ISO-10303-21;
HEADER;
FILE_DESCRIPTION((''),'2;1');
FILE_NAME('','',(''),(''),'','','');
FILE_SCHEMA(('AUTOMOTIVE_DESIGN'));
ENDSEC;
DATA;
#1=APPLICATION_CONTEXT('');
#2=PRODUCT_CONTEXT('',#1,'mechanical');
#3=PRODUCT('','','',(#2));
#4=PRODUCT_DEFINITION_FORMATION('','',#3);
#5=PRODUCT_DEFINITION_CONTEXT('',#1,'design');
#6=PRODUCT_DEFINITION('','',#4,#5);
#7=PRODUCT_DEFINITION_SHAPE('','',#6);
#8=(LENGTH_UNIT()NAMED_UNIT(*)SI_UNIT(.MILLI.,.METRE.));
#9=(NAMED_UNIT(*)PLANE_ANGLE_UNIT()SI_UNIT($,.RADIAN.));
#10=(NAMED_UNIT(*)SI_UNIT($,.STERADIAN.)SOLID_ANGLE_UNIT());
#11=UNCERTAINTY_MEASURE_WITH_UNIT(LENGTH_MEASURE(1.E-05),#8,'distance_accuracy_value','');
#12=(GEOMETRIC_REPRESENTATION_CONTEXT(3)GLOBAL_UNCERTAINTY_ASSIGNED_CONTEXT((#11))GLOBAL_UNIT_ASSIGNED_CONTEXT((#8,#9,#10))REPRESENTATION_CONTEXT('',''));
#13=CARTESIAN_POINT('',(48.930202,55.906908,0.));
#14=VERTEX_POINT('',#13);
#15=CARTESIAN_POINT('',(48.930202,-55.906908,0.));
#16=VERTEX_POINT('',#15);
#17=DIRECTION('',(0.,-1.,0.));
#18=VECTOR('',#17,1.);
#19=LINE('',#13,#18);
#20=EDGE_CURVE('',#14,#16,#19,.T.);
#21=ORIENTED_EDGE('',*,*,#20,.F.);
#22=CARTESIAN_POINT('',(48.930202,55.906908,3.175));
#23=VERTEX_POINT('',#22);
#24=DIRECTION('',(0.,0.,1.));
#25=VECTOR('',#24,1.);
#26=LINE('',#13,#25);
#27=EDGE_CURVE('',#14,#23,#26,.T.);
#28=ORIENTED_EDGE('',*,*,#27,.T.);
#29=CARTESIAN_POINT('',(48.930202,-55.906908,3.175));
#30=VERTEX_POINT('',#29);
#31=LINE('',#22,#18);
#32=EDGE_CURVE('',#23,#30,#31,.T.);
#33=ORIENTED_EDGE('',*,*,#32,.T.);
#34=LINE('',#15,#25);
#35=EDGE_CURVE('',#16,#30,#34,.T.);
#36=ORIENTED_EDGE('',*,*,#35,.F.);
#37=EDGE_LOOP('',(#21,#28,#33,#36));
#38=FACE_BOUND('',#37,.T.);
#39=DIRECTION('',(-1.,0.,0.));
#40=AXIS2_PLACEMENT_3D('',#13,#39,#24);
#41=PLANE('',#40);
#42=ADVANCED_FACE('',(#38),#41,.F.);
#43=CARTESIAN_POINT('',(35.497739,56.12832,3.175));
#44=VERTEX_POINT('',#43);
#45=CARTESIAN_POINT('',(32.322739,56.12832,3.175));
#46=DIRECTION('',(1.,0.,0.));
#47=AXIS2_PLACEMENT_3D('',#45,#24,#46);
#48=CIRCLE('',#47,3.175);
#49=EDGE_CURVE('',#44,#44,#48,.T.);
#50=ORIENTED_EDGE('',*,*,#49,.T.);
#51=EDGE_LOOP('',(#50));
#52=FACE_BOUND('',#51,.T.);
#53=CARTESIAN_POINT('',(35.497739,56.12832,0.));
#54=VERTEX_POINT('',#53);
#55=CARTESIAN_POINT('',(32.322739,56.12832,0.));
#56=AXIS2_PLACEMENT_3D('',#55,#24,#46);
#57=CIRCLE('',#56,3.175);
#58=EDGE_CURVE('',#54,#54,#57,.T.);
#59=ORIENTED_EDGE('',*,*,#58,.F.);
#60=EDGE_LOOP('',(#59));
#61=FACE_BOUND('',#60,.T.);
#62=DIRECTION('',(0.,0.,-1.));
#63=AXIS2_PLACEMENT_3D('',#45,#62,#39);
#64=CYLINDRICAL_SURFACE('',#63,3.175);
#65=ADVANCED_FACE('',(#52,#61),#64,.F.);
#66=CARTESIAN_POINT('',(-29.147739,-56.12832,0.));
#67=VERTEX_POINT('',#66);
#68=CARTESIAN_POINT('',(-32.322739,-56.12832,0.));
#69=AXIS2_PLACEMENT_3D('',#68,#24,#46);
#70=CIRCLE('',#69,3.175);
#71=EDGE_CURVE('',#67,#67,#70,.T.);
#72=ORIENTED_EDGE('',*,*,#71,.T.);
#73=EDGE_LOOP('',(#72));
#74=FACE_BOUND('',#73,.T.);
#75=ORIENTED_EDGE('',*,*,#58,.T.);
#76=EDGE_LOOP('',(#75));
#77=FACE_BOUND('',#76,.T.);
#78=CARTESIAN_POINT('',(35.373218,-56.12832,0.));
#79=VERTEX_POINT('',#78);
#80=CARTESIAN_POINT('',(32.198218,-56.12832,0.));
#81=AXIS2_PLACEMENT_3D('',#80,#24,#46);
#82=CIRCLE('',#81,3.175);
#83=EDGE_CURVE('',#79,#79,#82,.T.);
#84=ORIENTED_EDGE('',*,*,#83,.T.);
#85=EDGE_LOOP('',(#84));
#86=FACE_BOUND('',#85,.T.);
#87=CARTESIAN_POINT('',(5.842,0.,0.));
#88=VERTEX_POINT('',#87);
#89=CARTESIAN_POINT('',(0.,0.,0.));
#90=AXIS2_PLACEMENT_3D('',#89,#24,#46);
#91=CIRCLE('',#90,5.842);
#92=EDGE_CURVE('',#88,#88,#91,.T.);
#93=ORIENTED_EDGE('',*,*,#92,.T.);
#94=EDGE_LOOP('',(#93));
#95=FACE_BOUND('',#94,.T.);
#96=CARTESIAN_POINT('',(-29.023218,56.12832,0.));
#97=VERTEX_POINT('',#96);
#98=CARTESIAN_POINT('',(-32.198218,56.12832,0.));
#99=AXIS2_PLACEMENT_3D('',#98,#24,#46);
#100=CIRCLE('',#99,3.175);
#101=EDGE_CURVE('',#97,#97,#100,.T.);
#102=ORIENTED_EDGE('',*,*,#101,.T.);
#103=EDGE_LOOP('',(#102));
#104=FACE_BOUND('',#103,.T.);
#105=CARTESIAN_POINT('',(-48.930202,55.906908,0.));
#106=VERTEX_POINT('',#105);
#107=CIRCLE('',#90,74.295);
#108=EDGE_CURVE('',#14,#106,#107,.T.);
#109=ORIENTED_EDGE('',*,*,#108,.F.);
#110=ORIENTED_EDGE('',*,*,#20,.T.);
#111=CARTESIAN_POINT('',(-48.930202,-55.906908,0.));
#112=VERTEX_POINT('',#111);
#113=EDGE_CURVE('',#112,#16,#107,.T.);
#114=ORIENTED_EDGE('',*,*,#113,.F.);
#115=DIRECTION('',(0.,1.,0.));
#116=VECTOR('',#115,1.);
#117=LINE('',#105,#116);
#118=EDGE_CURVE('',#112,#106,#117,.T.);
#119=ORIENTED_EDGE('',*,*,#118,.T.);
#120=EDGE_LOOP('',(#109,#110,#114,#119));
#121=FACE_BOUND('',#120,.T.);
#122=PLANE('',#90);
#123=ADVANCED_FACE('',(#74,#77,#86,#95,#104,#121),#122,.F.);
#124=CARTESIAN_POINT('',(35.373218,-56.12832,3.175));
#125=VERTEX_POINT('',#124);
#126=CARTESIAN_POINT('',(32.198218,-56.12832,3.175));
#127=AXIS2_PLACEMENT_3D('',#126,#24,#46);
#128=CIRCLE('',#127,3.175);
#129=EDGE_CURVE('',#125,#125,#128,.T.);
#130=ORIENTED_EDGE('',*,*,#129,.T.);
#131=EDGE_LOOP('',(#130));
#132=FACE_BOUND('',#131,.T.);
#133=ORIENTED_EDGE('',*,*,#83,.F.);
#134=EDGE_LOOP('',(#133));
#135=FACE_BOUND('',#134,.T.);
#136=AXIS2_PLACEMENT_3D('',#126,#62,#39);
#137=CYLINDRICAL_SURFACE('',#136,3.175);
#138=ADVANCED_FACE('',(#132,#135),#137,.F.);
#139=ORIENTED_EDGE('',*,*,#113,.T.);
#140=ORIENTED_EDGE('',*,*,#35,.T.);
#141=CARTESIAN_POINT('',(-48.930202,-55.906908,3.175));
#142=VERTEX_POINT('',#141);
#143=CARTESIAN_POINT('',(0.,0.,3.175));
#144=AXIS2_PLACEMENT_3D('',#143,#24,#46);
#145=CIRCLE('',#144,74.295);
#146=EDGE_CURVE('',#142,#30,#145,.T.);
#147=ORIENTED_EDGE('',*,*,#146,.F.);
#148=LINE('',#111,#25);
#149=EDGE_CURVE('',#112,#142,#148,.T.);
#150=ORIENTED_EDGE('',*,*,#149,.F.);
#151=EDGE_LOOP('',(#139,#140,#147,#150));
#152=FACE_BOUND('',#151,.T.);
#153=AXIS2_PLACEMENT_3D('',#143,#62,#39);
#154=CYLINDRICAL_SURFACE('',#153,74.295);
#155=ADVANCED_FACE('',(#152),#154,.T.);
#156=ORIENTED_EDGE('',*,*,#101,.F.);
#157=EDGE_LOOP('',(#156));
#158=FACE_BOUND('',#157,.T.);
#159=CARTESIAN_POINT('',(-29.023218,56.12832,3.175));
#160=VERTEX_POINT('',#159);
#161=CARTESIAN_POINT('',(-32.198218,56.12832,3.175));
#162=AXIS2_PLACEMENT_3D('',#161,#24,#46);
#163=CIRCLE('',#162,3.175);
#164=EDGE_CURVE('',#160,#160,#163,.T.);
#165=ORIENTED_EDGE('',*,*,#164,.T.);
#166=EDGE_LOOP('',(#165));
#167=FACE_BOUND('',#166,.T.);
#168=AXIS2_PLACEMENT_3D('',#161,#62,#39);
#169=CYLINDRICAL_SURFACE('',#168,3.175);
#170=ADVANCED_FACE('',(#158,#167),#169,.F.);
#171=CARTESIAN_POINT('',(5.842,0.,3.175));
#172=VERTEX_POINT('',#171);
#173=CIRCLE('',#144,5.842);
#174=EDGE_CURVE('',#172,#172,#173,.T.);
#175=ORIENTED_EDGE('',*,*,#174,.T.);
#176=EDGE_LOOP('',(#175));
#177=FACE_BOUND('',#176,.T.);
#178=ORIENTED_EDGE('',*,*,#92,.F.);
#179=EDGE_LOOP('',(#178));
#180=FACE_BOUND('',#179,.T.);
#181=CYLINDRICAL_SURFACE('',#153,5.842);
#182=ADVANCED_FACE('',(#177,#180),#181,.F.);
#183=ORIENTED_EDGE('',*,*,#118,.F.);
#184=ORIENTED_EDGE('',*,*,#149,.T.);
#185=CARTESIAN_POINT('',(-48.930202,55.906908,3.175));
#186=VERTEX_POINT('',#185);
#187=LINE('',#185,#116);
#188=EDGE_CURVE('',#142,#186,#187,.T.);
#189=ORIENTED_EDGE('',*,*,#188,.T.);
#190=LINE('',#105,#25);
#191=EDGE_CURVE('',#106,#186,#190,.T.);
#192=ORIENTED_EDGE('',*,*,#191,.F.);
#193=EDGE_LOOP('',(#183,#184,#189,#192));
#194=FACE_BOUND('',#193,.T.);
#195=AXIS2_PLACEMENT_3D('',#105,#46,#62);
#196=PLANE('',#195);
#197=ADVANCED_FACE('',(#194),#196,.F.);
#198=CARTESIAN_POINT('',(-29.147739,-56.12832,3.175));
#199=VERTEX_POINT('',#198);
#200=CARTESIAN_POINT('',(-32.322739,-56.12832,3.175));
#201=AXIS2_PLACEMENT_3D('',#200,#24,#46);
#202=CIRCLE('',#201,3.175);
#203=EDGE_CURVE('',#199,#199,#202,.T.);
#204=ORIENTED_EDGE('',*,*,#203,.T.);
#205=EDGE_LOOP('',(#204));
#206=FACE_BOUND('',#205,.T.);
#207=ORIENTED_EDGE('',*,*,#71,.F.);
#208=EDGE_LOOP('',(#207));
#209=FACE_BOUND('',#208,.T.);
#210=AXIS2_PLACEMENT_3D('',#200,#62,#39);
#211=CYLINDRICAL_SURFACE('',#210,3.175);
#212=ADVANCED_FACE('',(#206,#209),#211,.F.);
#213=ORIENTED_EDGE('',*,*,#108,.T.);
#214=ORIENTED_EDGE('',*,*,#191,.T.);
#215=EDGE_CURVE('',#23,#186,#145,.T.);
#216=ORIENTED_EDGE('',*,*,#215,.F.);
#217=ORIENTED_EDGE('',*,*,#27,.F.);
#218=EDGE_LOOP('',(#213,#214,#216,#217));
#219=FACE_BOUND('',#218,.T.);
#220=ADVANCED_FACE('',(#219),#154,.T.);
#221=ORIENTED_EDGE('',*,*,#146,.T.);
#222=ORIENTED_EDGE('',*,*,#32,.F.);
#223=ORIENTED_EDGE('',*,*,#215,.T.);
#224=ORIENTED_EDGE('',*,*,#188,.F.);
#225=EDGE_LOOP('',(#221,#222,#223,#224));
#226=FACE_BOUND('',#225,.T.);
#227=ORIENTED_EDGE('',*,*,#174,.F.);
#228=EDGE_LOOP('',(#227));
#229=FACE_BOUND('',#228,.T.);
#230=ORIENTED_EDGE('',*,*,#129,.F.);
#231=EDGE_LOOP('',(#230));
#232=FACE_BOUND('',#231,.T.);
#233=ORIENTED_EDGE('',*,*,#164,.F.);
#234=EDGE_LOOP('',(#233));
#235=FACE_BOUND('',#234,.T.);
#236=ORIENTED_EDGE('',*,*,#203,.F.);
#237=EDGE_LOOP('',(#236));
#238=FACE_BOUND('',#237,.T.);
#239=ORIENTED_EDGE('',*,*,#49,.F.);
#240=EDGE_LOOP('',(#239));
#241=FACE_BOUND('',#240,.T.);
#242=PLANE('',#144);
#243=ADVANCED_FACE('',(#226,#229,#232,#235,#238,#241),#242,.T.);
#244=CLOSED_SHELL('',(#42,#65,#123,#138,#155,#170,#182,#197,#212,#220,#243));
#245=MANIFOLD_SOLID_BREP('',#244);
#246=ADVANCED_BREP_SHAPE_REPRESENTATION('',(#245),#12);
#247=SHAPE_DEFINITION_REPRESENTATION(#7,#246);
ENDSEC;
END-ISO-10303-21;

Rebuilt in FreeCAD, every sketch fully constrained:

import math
import FreeCAD as App
import Part
import Sketcher

V = App.Vector
Q = App.Units.Quantity

doc = App.newDocument("Part")
body = doc.addObject("PartDesign::Body", "Body")

# Sketch on XY plane
sketch1 = body.newObject("Sketcher::SketchObject", "Sketch")
sketch1.AttachmentSupport = (doc.getObject("XY_Plane"), [""])
sketch1.MapMode = "FlatFace"
sketch1.addGeometry(Part.Circle(V(0, 0, 0), V(0, 0, 1), 74.3), False)
sketch1.addGeometry(Part.Circle(V(-32.3, -56.1, 0), V(0, 0, 1), 3.2), False)
sketch1.addGeometry(Part.Circle(V(32.2, -56.1, 0), V(0, 0, 1), 3.2), False)
sketch1.addGeometry(Part.Circle(V(-32.2, 56.1, 0), V(0, 0, 1), 3.2), False)
sketch1.addGeometry(Part.Circle(V(0, 0, 0), V(0, 0, 1), 5.8), False)
sketch1.addGeometry(Part.Circle(V(32.3, 56.1, 0), V(0, 0, 1), 3.2), False)
sketch1.addConstraint(Sketcher.Constraint("Coincident", 0, 3, -1, 1))
sketch1.addConstraint(Sketcher.Constraint("Coincident", 4, 3, -1, 1))
sketch1.addConstraint(Sketcher.Constraint("Equal", 1, 2))
sketch1.addConstraint(Sketcher.Constraint("Equal", 2, 3))
sketch1.addConstraint(Sketcher.Constraint("Equal", 3, 5))
sketch1.addConstraint(Sketcher.Constraint("Symmetric", 2, 3, 3, 3, -1, 1))
sketch1.addConstraint(Sketcher.Constraint("Symmetric", 1, 3, 5, 3, -1, 1))
sketch1.addConstraint(Sketcher.Constraint("Horizontal", 1, 3, 2, 3))
sketch1.addConstraint(Sketcher.Constraint("Diameter", 0, Q("5.85 in")))
sketch1.addConstraint(Sketcher.Constraint("Diameter", 1, Q("0.25 in")))
sketch1.addConstraint(Sketcher.Constraint("Diameter", 4, Q("0.46 in")))
sketch1.addConstraint(Sketcher.Constraint("DistanceX", 1, 3, -1, 1, 32.322739))
sketch1.addConstraint(Sketcher.Constraint("DistanceY", 1, 3, -1, 1, 56.12832))
sketch1.addConstraint(Sketcher.Constraint("DistanceX", 1, 3, 3, 3, 0.124522))
pad1 = body.newObject("PartDesign::Pad", "Pad")
pad1.Profile = sketch1
pad1.Length = Q("0.125 in")

# Sketch on XY plane
sketch2 = body.newObject("Sketcher::SketchObject", "Sketch001")
sketch2.AttachmentSupport = (doc.getObject("XY_Plane"), [""])
sketch2.MapMode = "FlatFace"
sketch2.AttachmentOffset = App.Placement(V(0, 0, 0.125 * 25.4), App.Rotation())
sketch2.addGeometry(Part.LineSegment(V(-49, -56, 0), V(-49, 56, 0)), False)
sketch2.addGeometry(Part.ArcOfCircle(Part.Circle(V(0, 0, 0), V(0, 0, 1), 74), math.radians(131), math.radians(229)), False)
sketch2.addGeometry(Part.LineSegment(V(49, 56, 0), V(49, -56, 0)), False)
sketch2.addGeometry(Part.ArcOfCircle(Part.Circle(V(0, 0, 0), V(0, 0, 1), 74), math.radians(-49), math.radians(49)), False)
sketch2.addConstraint(Sketcher.Constraint("Coincident", 0, 1, 1, 2))
sketch2.addConstraint(Sketcher.Constraint("Coincident", 1, 1, 0, 2))
sketch2.addConstraint(Sketcher.Constraint("Coincident", 2, 1, 3, 2))
sketch2.addConstraint(Sketcher.Constraint("Coincident", 3, 1, 2, 2))
sketch2.addConstraint(Sketcher.Constraint("Vertical", 0))
sketch2.addConstraint(Sketcher.Constraint("Vertical", 2))
sketch2.addConstraint(Sketcher.Constraint("Coincident", 1, 3, -1, 1))
sketch2.addConstraint(Sketcher.Constraint("Coincident", 3, 3, -1, 1))
sketch2.addConstraint(Sketcher.Constraint("Equal", 1, 3))
sketch2.addConstraint(Sketcher.Constraint("Horizontal", 1, 1, 2, 1))
sketch2.addConstraint(Sketcher.Constraint("Radius", 1, Q("2.925 in")))
sketch2.addConstraint(Sketcher.Constraint("DistanceY", 0, 1, 0, 2, 111.813815))
pocket1 = body.newObject("PartDesign::Pocket", "Pocket")
pocket1.Profile = sketch2
pocket1.Type = "ThroughAll"

doc.recompute()
